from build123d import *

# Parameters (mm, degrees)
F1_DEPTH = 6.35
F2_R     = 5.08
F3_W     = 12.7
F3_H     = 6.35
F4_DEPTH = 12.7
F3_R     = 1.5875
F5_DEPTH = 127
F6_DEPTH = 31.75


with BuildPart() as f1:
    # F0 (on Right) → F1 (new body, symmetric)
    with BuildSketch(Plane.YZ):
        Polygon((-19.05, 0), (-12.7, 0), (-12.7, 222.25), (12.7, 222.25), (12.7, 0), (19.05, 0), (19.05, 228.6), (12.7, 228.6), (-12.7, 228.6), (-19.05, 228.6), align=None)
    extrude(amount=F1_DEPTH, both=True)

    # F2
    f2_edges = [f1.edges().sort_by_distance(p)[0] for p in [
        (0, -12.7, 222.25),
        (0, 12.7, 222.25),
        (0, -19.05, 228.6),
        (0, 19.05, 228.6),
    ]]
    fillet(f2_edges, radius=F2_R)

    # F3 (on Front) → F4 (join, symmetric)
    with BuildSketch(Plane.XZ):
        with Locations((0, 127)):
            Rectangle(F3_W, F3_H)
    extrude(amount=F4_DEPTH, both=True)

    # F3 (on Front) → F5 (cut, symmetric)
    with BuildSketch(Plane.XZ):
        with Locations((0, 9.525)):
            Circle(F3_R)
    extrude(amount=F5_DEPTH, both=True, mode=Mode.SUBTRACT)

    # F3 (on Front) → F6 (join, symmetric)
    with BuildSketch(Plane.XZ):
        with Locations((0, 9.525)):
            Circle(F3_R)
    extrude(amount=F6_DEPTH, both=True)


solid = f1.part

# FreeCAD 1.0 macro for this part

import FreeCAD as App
import Part
import Sketcher
Q = App.Units.Quantity


def edges_at(feature, points):
    """Names of the edges that pass closest to the given points."""
    edges = feature.Shape.Edges
    near = lambda p: min(range(len(edges)), key=lambda i: edges[i].distToShape(Part.Vertex(*p))[0])
    return sorted({f"Edge{near(p) + 1}" for p in points})


def add_polygon(sketch, points):
    """Adds a closed chain of lines whose ends are joined by coincident constraints."""
    first, n = sketch.GeometryCount, len(points)
    for a, b in zip(points, points[1:] + points[:1]):
        sketch.addGeometry(Part.LineSegment(App.Vector(*a, 0), App.Vector(*b, 0)), False)
    for i in range(n):
        sketch.addConstraint(Sketcher.Constraint("Coincident", first + i, 2, first + (i + 1) % n, 1))

doc = App.newDocument("Part")
body = doc.addObject("PartDesign::Body", "Body")

# Sketch on YZ plane
sketch1 = body.newObject("Sketcher::SketchObject", "Sketch")
sketch1.AttachmentSupport = (doc.getObject("YZ_Plane"), [""])
sketch1.MapMode = "FlatFace"
add_polygon(sketch1, [(-19.05, 0), (-12.7, 0), (-12.7, 222.25), (12.7, 222.25), (12.7, 0), (19.05, 0), (19.05, 228.6), (-19.05, 228.6)])  # lines 0-7
sketch1.addConstraint(Sketcher.Constraint("Horizontal", 0))
sketch1.addConstraint(Sketcher.Constraint("Vertical", 1))
sketch1.addConstraint(Sketcher.Constraint("Horizontal", 2))
sketch1.addConstraint(Sketcher.Constraint("Vertical", 3))
sketch1.addConstraint(Sketcher.Constraint("Horizontal", 4))
sketch1.addConstraint(Sketcher.Constraint("Vertical", 5))
sketch1.addConstraint(Sketcher.Constraint("Horizontal", 6))
sketch1.addConstraint(Sketcher.Constraint("Vertical", 7))
sketch1.addConstraint(Sketcher.Constraint("Symmetric", 0, 2, 3, 2, -1, 1))
sketch1.addConstraint(Sketcher.Constraint("Symmetric", 4, 2, 7, 2, -2))
sketch1.addConstraint(Sketcher.Constraint("DistanceX", 2, 1, 2, 2, Q("1 in")))
sketch1.addConstraint(Sketcher.Constraint("DistanceY", 5, 1, 5, 2, Q("9 in")))
sketch1.addConstraint(Sketcher.Constraint("DistanceX", 6, 2, 6, 1, Q("1.5 in")))
sketch1.addConstraint(Sketcher.Constraint("DistanceY", 1, 1, 1, 2, Q("8.75 in")))
pad1 = body.newObject("PartDesign::Pad", "Pad")
pad1.Profile = sketch1
pad1.Length = Q("0.5 in")
pad1.Midplane = True
doc.recompute()

fillet = body.newObject("PartDesign::Fillet", "Fillet")
fillet.Base = (pad1, edges_at(pad1, [
    (0, -12.7, 222.25),
    (0, 12.7, 222.25),
    (0, -19.05, 228.6),
    (0, 19.05, 228.6),
]))
fillet.Radius = Q("0.2 in")

# Sketch on XZ plane
sketch2 = body.newObject("Sketcher::SketchObject", "Sketch001")
sketch2.AttachmentSupport = (doc.getObject("XZ_Plane"), [""])
sketch2.MapMode = "FlatFace"
add_polygon(sketch2, [(-6.35, 130.175), (-6.35, 123.825), (6.35, 123.825), (6.35, 130.175)])  # lines 0-3
sketch2.addConstraint(Sketcher.Constraint("Vertical", 0))
sketch2.addConstraint(Sketcher.Constraint("Horizontal", 1))
sketch2.addConstraint(Sketcher.Constraint("Vertical", 2))
sketch2.addConstraint(Sketcher.Constraint("Horizontal", 3))
sketch2.addConstraint(Sketcher.Constraint("DistanceX", 1, 1, 1, 2, Q("0.5 in")))
sketch2.addConstraint(Sketcher.Constraint("DistanceY", 0, 2, 0, 1, Q("0.25 in")))
sketch2.addConstraint(Sketcher.Constraint("DistanceX", 0, 2, -1, 1, Q("0.25 in")))
sketch2.addConstraint(Sketcher.Constraint("DistanceY", -1, 1, 0, 2, Q("4.875 in")))
pad2 = body.newObject("PartDesign::Pad", "Pad001")
pad2.Profile = sketch2
pad2.Length = Q("1 in")
pad2.Midplane = True

# Sketch on XZ plane
sketch3 = body.newObject("Sketcher::SketchObject", "Sketch002")
sketch3.AttachmentSupport = (doc.getObject("XZ_Plane"), [""])
sketch3.MapMode = "FlatFace"
sketch3.addGeometry(Part.Circle(App.Vector(0, 9.525, 0), App.Vector(0, 0, 1), 1.5875), False)
sketch3.addConstraint(Sketcher.Constraint("PointOnObject", 0, 3, -2))
sketch3.addConstraint(Sketcher.Constraint("Diameter", 0, Q("0.125 in")))
sketch3.addConstraint(Sketcher.Constraint("DistanceY", -1, 1, 0, 3, Q("0.375 in")))
pocket1 = body.newObject("PartDesign::Pocket", "Pocket")
pocket1.Profile = sketch3
pocket1.Length = Q("10 in")
pocket1.Midplane = True

# Sketch on XZ plane
sketch4 = body.newObject("Sketcher::SketchObject", "Sketch003")
sketch4.AttachmentSupport = (doc.getObject("XZ_Plane"), [""])
sketch4.MapMode = "FlatFace"
sketch4.addGeometry(Part.Circle(App.Vector(0, 9.525, 0), App.Vector(0, 0, 1), 1.5875), False)
sketch4.addConstraint(Sketcher.Constraint("PointOnObject", 0, 3, -2))
sketch4.addConstraint(Sketcher.Constraint("Diameter", 0, Q("0.125 in")))
sketch4.addConstraint(Sketcher.Constraint("DistanceY", -1, 1, 0, 3, Q("0.375 in")))
pad3 = body.newObject("PartDesign::Pad", "Pad002")
pad3.Profile = sketch4
pad3.Length = Q("2.5 in")
pad3.Midplane = True

doc.recompute()
